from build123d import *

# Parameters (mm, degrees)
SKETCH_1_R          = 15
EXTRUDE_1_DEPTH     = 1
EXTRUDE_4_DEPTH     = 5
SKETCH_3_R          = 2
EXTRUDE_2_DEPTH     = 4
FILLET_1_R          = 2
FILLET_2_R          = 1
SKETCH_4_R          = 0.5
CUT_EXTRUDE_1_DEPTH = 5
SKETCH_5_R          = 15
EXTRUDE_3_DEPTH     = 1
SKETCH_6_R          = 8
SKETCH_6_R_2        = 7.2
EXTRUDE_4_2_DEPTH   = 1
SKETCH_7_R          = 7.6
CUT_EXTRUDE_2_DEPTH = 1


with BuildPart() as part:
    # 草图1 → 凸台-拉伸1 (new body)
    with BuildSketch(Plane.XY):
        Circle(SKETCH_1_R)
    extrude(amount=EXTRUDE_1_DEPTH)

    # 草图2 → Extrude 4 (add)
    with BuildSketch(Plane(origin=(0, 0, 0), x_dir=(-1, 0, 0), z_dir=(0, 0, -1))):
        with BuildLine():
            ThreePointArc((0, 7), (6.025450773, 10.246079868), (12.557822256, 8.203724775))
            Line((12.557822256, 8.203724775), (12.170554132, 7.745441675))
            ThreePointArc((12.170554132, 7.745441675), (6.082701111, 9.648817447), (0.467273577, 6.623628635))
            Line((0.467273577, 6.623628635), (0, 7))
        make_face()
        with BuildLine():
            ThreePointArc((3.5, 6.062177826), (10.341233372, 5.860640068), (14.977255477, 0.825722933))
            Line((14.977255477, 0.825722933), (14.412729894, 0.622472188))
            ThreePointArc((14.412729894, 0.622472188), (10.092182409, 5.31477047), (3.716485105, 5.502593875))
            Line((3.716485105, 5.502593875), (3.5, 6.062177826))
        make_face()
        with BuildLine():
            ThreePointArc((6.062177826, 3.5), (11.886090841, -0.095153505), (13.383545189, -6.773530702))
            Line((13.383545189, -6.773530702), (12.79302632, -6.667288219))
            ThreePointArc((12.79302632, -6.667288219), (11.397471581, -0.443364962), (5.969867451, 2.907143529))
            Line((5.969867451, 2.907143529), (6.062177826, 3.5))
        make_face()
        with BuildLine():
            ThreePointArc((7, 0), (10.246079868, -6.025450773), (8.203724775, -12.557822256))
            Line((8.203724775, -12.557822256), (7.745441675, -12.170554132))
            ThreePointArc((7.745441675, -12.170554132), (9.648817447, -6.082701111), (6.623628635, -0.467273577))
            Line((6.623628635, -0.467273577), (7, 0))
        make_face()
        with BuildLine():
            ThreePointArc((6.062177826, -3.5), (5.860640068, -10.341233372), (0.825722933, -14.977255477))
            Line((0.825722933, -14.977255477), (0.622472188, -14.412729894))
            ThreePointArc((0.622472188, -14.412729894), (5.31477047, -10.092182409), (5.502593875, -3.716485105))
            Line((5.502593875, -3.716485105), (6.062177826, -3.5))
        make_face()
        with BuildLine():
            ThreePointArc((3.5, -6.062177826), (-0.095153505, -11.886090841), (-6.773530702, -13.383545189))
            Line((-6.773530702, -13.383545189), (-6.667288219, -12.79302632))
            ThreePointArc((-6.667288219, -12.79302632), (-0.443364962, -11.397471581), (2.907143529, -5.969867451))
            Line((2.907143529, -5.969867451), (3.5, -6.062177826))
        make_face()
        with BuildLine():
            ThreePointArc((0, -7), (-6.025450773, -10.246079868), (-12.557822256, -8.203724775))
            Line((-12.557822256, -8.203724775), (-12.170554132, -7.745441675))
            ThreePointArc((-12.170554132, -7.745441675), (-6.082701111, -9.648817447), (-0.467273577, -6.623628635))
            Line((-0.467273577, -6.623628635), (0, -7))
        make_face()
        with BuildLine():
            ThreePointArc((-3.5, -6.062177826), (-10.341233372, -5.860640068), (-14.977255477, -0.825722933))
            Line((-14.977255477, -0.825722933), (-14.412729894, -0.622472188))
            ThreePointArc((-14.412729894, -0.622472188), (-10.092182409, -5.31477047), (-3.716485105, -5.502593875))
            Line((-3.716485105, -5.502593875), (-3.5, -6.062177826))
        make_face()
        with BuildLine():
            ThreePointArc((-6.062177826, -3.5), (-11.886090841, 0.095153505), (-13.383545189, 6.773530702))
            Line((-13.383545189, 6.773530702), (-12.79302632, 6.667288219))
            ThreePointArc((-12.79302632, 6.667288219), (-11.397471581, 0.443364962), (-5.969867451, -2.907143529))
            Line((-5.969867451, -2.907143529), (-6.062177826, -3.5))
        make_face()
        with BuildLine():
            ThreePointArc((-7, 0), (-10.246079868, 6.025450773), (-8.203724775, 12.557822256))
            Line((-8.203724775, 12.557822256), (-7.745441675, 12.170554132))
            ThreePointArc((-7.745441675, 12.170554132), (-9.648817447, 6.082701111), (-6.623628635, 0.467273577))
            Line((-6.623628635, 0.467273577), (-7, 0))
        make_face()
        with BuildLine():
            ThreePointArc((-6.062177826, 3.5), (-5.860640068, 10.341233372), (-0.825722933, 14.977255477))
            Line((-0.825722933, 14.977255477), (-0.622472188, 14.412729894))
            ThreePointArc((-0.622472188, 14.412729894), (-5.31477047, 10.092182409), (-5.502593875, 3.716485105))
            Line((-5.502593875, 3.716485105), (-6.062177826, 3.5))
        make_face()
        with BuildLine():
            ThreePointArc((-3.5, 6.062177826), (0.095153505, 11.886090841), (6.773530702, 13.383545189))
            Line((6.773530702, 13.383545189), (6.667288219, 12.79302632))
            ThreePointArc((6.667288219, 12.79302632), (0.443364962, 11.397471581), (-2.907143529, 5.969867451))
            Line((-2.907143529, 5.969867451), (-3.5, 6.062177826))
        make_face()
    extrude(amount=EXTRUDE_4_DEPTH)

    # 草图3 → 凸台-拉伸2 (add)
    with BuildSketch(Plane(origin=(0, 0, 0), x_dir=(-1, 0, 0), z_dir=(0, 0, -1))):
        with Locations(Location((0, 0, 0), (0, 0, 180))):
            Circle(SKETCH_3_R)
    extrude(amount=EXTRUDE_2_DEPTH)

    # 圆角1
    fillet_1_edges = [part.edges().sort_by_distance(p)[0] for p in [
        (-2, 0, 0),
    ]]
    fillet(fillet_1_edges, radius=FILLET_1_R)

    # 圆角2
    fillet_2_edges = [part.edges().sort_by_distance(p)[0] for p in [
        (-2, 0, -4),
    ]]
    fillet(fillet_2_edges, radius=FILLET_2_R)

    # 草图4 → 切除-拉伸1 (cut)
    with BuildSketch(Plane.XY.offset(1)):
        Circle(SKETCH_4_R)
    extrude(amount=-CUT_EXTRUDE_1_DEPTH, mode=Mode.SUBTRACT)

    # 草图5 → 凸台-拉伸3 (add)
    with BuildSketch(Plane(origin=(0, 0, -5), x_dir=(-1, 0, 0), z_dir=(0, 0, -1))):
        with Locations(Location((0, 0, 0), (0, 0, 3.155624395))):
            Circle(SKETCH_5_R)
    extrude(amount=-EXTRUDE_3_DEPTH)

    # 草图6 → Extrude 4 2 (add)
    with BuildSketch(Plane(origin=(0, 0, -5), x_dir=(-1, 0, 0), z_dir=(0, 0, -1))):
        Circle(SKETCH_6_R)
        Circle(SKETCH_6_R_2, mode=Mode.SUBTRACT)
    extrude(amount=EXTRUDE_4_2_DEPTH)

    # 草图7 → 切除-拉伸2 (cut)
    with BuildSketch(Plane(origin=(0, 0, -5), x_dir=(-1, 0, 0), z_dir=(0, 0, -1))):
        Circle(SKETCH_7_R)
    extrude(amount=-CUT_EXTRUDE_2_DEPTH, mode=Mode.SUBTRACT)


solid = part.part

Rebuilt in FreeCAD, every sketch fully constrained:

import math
import FreeCAD as App
import Part
import Sketcher
from FreeCAD import Vector
Q = App.Units.Quantity


def edges_at(feature, points):
    """Names of the edges that pass closest to the given points."""
    edges = feature.Shape.Edges
    near = lambda p: min(range(len(edges)), key=lambda i: edges[i].distToShape(Part.Vertex(*p))[0])
    return sorted({f"Edge{near(p) + 1}" for p in points})

doc = App.newDocument("Part")
body = doc.addObject("PartDesign::Body", "Body")

sketch1 = body.newObject("Sketcher::SketchObject", "Sketch")
sketch1.AttachmentSupport = (doc.getObject("XY_Plane"), [""])
sketch1.MapMode = "FlatFace"
sketch1.addGeometry(Part.Circle(Vector(0, 0, 0), Vector(0, 0, 1), 15), False)
sketch1.addConstraint([
    Sketcher.Constraint("Coincident", 0, 3, -1, 1),
    Sketcher.Constraint("Diameter", 0, Q("30 mm")),
])
pad1 = body.newObject("PartDesign::Pad", "Pad")
pad1.Profile = sketch1
pad1.Length = 1

sketch2 = body.newObject("Sketcher::SketchObject", "Sketch001")
sketch2.AttachmentSupport = (doc.getObject("XY_Plane"), [""])
sketch2.MapMode = "FlatFace"
sketch2.addGeometry([
    Part.ArcOfCircle(Part.Circle(Vector(-6.9, 1.5, 0), Vector(0, 0, 1), 8.8), math.radians(39), math.radians(130)),
    Part.LineSegment(Vector(0, 7, 0), Vector(-0.5, 6.6, 0)),
    Part.ArcOfCircle(Part.Circle(Vector(-6.9, 1.5, 0), Vector(0, 0, 1), 8.2), math.radians(39), math.radians(130)),
    Part.LineSegment(Vector(-12.2, 7.7, 0), Vector(-12.6, 8.2, 0)),
    Part.ArcOfCircle(Part.Circle(Vector(-6.7, -2.2, 0), Vector(0, 0, 1), 8.8), math.radians(69), math.radians(160)),
    Part.LineSegment(Vector(-3.5, 6.1, 0), Vector(-3.7, 5.5, 0)),
    Part.ArcOfCircle(Part.Circle(Vector(-6.7, -2.2, 0), Vector(0, 0, 1), 8.2), math.radians(69), math.radians(160)),
    Part.LineSegment(Vector(-14.4, 0.6, 0), Vector(-15, 0.8, 0)),
    Part.ArcOfCircle(Part.Circle(Vector(-4.7, -5.2, 0), Vector(0, 0, 1), 8.8), math.radians(99), math.radians(190)),
    Part.LineSegment(Vector(-6.1, 3.5, 0), Vector(-6, 2.9, 0)),
    Part.ArcOfCircle(Part.Circle(Vector(-4.7, -5.2, 0), Vector(0, 0, 1), 8.2), math.radians(99), math.radians(190)),
    Part.LineSegment(Vector(-12.8, -6.7, 0), Vector(-13.4, -6.8, 0)),
    Part.ArcOfCircle(Part.Circle(Vector(-1.5, -6.9, 0), Vector(0, 0, 1), 8.8), math.radians(129), math.radians(220)),
    Part.LineSegment(Vector(-7, 0, 0), Vector(-6.6, -0.5, 0)),
    Part.ArcOfCircle(Part.Circle(Vector(-1.5, -6.9, 0), Vector(0, 0, 1), 8.2), math.radians(129), math.radians(220)),
    Part.LineSegment(Vector(-7.7, -12.2, 0), Vector(-8.2, -12.6, 0)),
    Part.ArcOfCircle(Part.Circle(Vector(2.2, -6.7, 0), Vector(0, 0, 1), 8.8), math.radians(159), math.radians(250)),
    Part.LineSegment(Vector(-6.1, -3.5, 0), Vector(-5.5, -3.7, 0)),
    Part.ArcOfCircle(Part.Circle(Vector(2.2, -6.7, 0), Vector(0, 0, 1), 8.2), math.radians(159), math.radians(250)),
    Part.LineSegment(Vector(-0.6, -14.4, 0), Vector(-0.8, -15, 0)),
    Part.ArcOfCircle(Part.Circle(Vector(5.2, -4.7, 0), Vector(0, 0, 1), 8.8), math.radians(-171), math.radians(-80)),
    Part.LineSegment(Vector(-3.5, -6.1, 0), Vector(-2.9, -6, 0)),
    Part.ArcOfCircle(Part.Circle(Vector(5.2, -4.7, 0), Vector(0, 0, 1), 8.2), math.radians(-171), math.radians(-80)),
    Part.LineSegment(Vector(6.7, -12.8, 0), Vector(6.8, -13.4, 0)),
    Part.ArcOfCircle(Part.Circle(Vector(6.9, -1.5, 0), Vector(0, 0, 1), 8.8), math.radians(-141), math.radians(-50)),
    Part.LineSegment(Vector(0, -7, 0), Vector(0.5, -6.6, 0)),
    Part.ArcOfCircle(Part.Circle(Vector(6.9, -1.5, 0), Vector(0, 0, 1), 8.2), math.radians(-141), math.radians(-50)),
    Part.LineSegment(Vector(12.2, -7.7, 0), Vector(12.6, -8.2, 0)),
    Part.ArcOfCircle(Part.Circle(Vector(6.7, 2.2, 0), Vector(0, 0, 1), 8.8), math.radians(-111), math.radians(-20)),
    Part.LineSegment(Vector(3.5, -6.1, 0), Vector(3.7, -5.5, 0)),
    Part.ArcOfCircle(Part.Circle(Vector(6.7, 2.2, 0), Vector(0, 0, 1), 8.2), math.radians(-111), math.radians(-20)),
    Part.LineSegment(Vector(14.4, -0.6, 0), Vector(15, -0.8, 0)),
    Part.ArcOfCircle(Part.Circle(Vector(4.7, 5.2, 0), Vector(0, 0, 1), 8.8), math.radians(-81), math.radians(10)),
    Part.LineSegment(Vector(6.1, -3.5, 0), Vector(6, -2.9, 0)),
    Part.ArcOfCircle(Part.Circle(Vector(4.7, 5.2, 0), Vector(0, 0, 1), 8.2), math.radians(-81), math.radians(10)),
    Part.LineSegment(Vector(12.8, 6.7, 0), Vector(13.4, 6.8, 0)),
    Part.ArcOfCircle(Part.Circle(Vector(1.5, 6.9, 0), Vector(0, 0, 1), 8.8), math.radians(-51), math.radians(40)),
    Part.LineSegment(Vector(7, 0, 0), Vector(6.6, 0.5, 0)),
    Part.ArcOfCircle(Part.Circle(Vector(1.5, 6.9, 0), Vector(0, 0, 1), 8.2), math.radians(-51), math.radians(40)),
    Part.LineSegment(Vector(7.7, 12.2, 0), Vector(8.2, 12.6, 0)),
    Part.ArcOfCircle(Part.Circle(Vector(-2.2, 6.7, 0), Vector(0, 0, 1), 8.8), math.radians(-21), math.radians(70)),
    Part.LineSegment(Vector(6.1, 3.5, 0), Vector(5.5, 3.7, 0)),
    Part.ArcOfCircle(Part.Circle(Vector(-2.2, 6.7, 0), Vector(0, 0, 1), 8.2), math.radians(-21), math.radians(70)),
    Part.LineSegment(Vector(0.6, 14.4, 0), Vector(0.8, 15, 0)),
    Part.ArcOfCircle(Part.Circle(Vector(-5.2, 4.7, 0), Vector(0, 0, 1), 8.8), math.radians(9), math.radians(100)),
    Part.LineSegment(Vector(3.5, 6.1, 0), Vector(2.9, 6, 0)),
    Part.ArcOfCircle(Part.Circle(Vector(-5.2, 4.7, 0), Vector(0, 0, 1), 8.2), math.radians(9), math.radians(100)),
    Part.LineSegment(Vector(-6.7, 12.8, 0), Vector(-6.8, 13.4, 0)),
], False)
sketch2.addConstraint([
    Sketcher.Constraint("Coincident", 0, 1, 1, 1),
    Sketcher.Constraint("Coincident", 1, 2, 2, 1),
    Sketcher.Constraint("Coincident", 2, 2, 3, 1),
    Sketcher.Constraint("Coincident", 3, 2, 0, 2),
    Sketcher.Constraint("Coincident", 4, 1, 5, 1),
    Sketcher.Constraint("Coincident", 5, 2, 6, 1),
    Sketcher.Constraint("Coincident", 6, 2, 7, 1),
    Sketcher.Constraint("Coincident", 7, 2, 4, 2),
    Sketcher.Constraint("Coincident", 8, 1, 9, 1),
    Sketcher.Constraint("Coincident", 9, 2, 10, 1),
    Sketcher.Constraint("Coincident", 10, 2, 11, 1),
    Sketcher.Constraint("Coincident", 11, 2, 8, 2),
    Sketcher.Constraint("Coincident", 12, 1, 13, 1),
    Sketcher.Constraint("Coincident", 13, 2, 14, 1),
    Sketcher.Constraint("Coincident", 14, 2, 15, 1),
    Sketcher.Constraint("Coincident", 15, 2, 12, 2),
    Sketcher.Constraint("Coincident", 16, 1, 17, 1),
    Sketcher.Constraint("Coincident", 17, 2, 18, 1),
    Sketcher.Constraint("Coincident", 18, 2, 19, 1),
    Sketcher.Constraint("Coincident", 19, 2, 16, 2),
    Sketcher.Constraint("Coincident", 20, 1, 21, 1),
    Sketcher.Constraint("Coincident", 21, 2, 22, 1),
    Sketcher.Constraint("Coincident", 22, 2, 23, 1),
    Sketcher.Constraint("Coincident", 23, 2, 20, 2),
    Sketcher.Constraint("Coincident", 24, 1, 25, 1),
    Sketcher.Constraint("Coincident", 25, 2, 26, 1),
    Sketcher.Constraint("Coincident", 26, 2, 27, 1),
    Sketcher.Constraint("Coincident", 27, 2, 24, 2),
    Sketcher.Constraint("Coincident", 28, 1, 29, 1),
    Sketcher.Constraint("Coincident", 29, 2, 30, 1),
    Sketcher.Constraint("Coincident", 30, 2, 31, 1),
    Sketcher.Constraint("Coincident", 31, 2, 28, 2),
    Sketcher.Constraint("Coincident", 32, 1, 33, 1),
    Sketcher.Constraint("Coincident", 33, 2, 34, 1),
    Sketcher.Constraint("Coincident", 34, 2, 35, 1),
    Sketcher.Constraint("Coincident", 35, 2, 32, 2),
    Sketcher.Constraint("Coincident", 36, 1, 37, 1),
    Sketcher.Constraint("Coincident", 37, 2, 38, 1),
    Sketcher.Constraint("Coincident", 38, 2, 39, 1),
    Sketcher.Constraint("Coincident", 39, 2, 36, 2),
    Sketcher.Constraint("Coincident", 40, 1, 41, 1),
    Sketcher.Constraint("Coincident", 41, 2, 42, 1),
    Sketcher.Constraint("Coincident", 42, 2, 43, 1),
    Sketcher.Constraint("Coincident", 43, 2, 40, 2),
    Sketcher.Constraint("Coincident", 44, 1, 45, 1),
    Sketcher.Constraint("Coincident", 45, 2, 46, 1),
    Sketcher.Constraint("Coincident", 46, 2, 47, 1),
    Sketcher.Constraint("Coincident", 47, 2, 44, 2),
    Sketcher.Constraint("Coincident", 2, 3, 0, 3),
    Sketcher.Constraint("Coincident", 6, 3, 4, 3),
    Sketcher.Constraint("Coincident", 10, 3, 8, 3),
    Sketcher.Constraint("Coincident", 14, 3, 12, 3),
    Sketcher.Constraint("Coincident", 18, 3, 16, 3),
    Sketcher.Constraint("Coincident", 22, 3, 20, 3),
    Sketcher.Constraint("Coincident", 26, 3, 24, 3),
    Sketcher.Constraint("Coincident", 30, 3, 28, 3),
    Sketcher.Constraint("Coincident", 34, 3, 32, 3),
    Sketcher.Constraint("Coincident", 38, 3, 36, 3),
    Sketcher.Constraint("Coincident", 42, 3, 40, 3),
    Sketcher.Constraint("Coincident", 46, 3, 44, 3),
    Sketcher.Constraint("Equal", 0, 4),
    Sketcher.Constraint("Equal", 2, 6),
    Sketcher.Constraint("Equal", 4, 8),
    Sketcher.Constraint("Equal", 6, 10),
    Sketcher.Constraint("Equal", 8, 12),
    Sketcher.Constraint("Equal", 10, 14),
    Sketcher.Constraint("Equal", 12, 16),
    Sketcher.Constraint("Equal", 14, 18),
    Sketcher.Constraint("Equal", 16, 20),
    Sketcher.Constraint("Equal", 18, 22),
    Sketcher.Constraint("Equal", 20, 24),
    Sketcher.Constraint("Equal", 22, 26),
    Sketcher.Constraint("Equal", 24, 28),
    Sketcher.Constraint("Equal", 26, 30),
    Sketcher.Constraint("Equal", 28, 32),
    Sketcher.Constraint("Equal", 30, 34),
    Sketcher.Constraint("Equal", 32, 36),
    Sketcher.Constraint("Equal", 34, 38),
    Sketcher.Constraint("Equal", 36, 40),
    Sketcher.Constraint("Equal", 38, 42),
    Sketcher.Constraint("Equal", 40, 44),
    Sketcher.Constraint("Equal", 42, 46),
    Sketcher.Constraint("Symmetric", 0, 3, 24, 3, -1, 1),
    Sketcher.Constraint("Symmetric", 4, 3, 28, 3, -1, 1),
    Sketcher.Constraint("Symmetric", 8, 3, 32, 3, -1, 1),
    Sketcher.Constraint("Symmetric", 12, 3, 36, 3, -1, 1),
    Sketcher.Constraint("Symmetric", 16, 3, 40, 3, -1, 1),
    Sketcher.Constraint("Symmetric", 20, 3, 44, 3, -1, 1),
    Sketcher.Constraint("Symmetric", 20, 1, 28, 1, -2),
    Sketcher.Constraint("Symmetric", 16, 1, 32, 1, -2),
    Sketcher.Constraint("Symmetric", 12, 1, 36, 1, -2),
    Sketcher.Constraint("Symmetric", 8, 1, 40, 1, -2),
    Sketcher.Constraint("Symmetric", 4, 1, 44, 1, -2),
    Sketcher.Constraint("Symmetric", 0, 1, 24, 1, -1),
    Sketcher.Constraint("Perpendicular", 1, 13),
    Sketcher.Constraint("Perpendicular", 3, 15),
    Sketcher.Constraint("Perpendicular", 5, 17),
    Sketcher.Constraint("Perpendicular", 7, 19),
    Sketcher.Constraint("Perpendicular", 9, 21),
    Sketcher.Constraint("Perpendicular", 11, 23),
    Sketcher.Constraint("Perpendicular", 13, 25),
    Sketcher.Constraint("Perpendicular", 15, 27),
    Sketcher.Constraint("Perpendicular", 17, 29),
    Sketcher.Constraint("Perpendicular", 19, 31),
    Sketcher.Constraint("Perpendicular", 21, 33),
    Sketcher.Constraint("Perpendicular", 23, 35),
    Sketcher.Constraint("Perpendicular", 25, 37),
    Sketcher.Constraint("Perpendicular", 27, 39),
    Sketcher.Constraint("Perpendicular", 29, 41),
    Sketcher.Constraint("Perpendicular", 31, 43),
    Sketcher.Constraint("Perpendicular", 33, 45),
    Sketcher.Constraint("Perpendicular", 35, 47),
    Sketcher.Constraint("DistanceY", -1, 1, 0, 1, Q("7 mm")),
    Sketcher.Constraint("DistanceX", 12, 1, -1, 1, Q("7 mm")),
    Sketcher.Constraint("Distance", 1, Q("0.6 mm")),
    Sketcher.Constraint("DistanceX", 4, 1, -1, 1, Q("3.5 mm")),
    Sketcher.Constraint("DistanceY", -1, 1, 8, 1, Q("3.5 mm")),
    Sketcher.Constraint("Radius", 0, Q("8.817233 mm")),
    Sketcher.Constraint("DistanceX", 8, 3, -1, 1, Q("4.705641 mm")),
    Sketcher.Constraint("DistanceY", 20, 3, -1, 1, Q("4.705641 mm")),
    Sketcher.Constraint("DistanceY", -1, 1, 1, 2, Q("6.623629 mm")),
    Sketcher.Constraint("DistanceY", -1, 1, 2, 2, Q("7.745442 mm")),
    Sketcher.Constraint("DistanceX", 6, 2, -1, 1, Q("14.41273 mm")),
    Sketcher.Constraint("DistanceY", 10, 2, -1, 1, Q("6.667288 mm")),
    Sketcher.Constraint("DistanceY", 11, 2, -1, 1, Q("6.773531 mm")),
    Sketcher.Constraint("DistanceX", 14, 2, -1, 1, Q("7.745442 mm")),
    Sketcher.Constraint("DistanceY", 18, 2, -1, 1, Q("14.41273 mm")),
    Sketcher.Constraint("DistanceX", -1, 1, 22, 2, Q("6.667288 mm")),
    Sketcher.Constraint("DistanceY", 26, 2, -1, 1, Q("7.745442 mm")),
    Sketcher.Constraint("DistanceX", -1, 1, 30, 2, Q("14.41273 mm")),
    Sketcher.Constraint("DistanceY", -1, 1, 34, 2, Q("6.667288 mm")),
    Sketcher.Constraint("DistanceX", -1, 1, 38, 2, Q("7.745442 mm")),
    Sketcher.Constraint("DistanceY", -1, 1, 42, 2, Q("14.41273 mm")),
    Sketcher.Constraint("DistanceX", 46, 2, -1, 1, Q("6.667288 mm")),
    Sketcher.Constraint("DistanceX", 0, 3, -1, 1, Q("6.866767 mm")),
    Sketcher.Constraint("DistanceX", 4, 3, -1, 1, Q("6.681333 mm")),
    Sketcher.Constraint("DistanceY", 4, 3, -1, 1, Q("2.161126 mm")),
    Sketcher.Constraint("DistanceY", 8, 3, -1, 1, Q("5.212256 mm")),
    Sketcher.Constraint("DistanceX", 12, 3, -1, 1, Q("1.469077 mm")),
    Sketcher.Constraint("DistanceX", -1, 1, 16, 3, Q("2.161126 mm")),
    Sketcher.Constraint("DistanceX", 3, 2, -1, 1, Q("12.557822 mm")),
    Sketcher.Constraint("DistanceX", 5, 2, -1, 1, Q("3.716485 mm")),
    Sketcher.Constraint("DistanceX", 7, 2, -1, 1, Q("14.977255 mm")),
    Sketcher.Constraint("DistanceX", 9, 2, -1, 1, Q("5.969867 mm")),
])
pad2 = body.newObject("PartDesign::Pad", "Pad001")
pad2.Profile = sketch2
pad2.Length = 5
pad2.Reversed = True

sketch3 = body.newObject("Sketcher::SketchObject", "Sketch002")
sketch3.AttachmentSupport = (doc.getObject("XY_Plane"), [""])
sketch3.MapMode = "FlatFace"
sketch3.addGeometry(Part.Circle(Vector(0, 0, 0), Vector(0, 0, 1), 2), False)
sketch3.addConstraint([
    Sketcher.Constraint("Coincident", 0, 3, -1, 1),
    Sketcher.Constraint("Diameter", 0, Q("4 mm")),
])
pad3 = body.newObject("PartDesign::Pad", "Pad002")
pad3.Profile = sketch3
pad3.Length = 4
pad3.Reversed = True
doc.recompute()

fillet = body.newObject("PartDesign::Fillet", "Fillet")
fillet.Base = (pad3, edges_at(pad3, [(-2, 0, 0)]))
fillet.Radius = 2
doc.recompute()

fillet2 = body.newObject("PartDesign::Fillet", "Fillet001")
fillet2.Base = (fillet, edges_at(fillet, [(-2, 0, -4)]))
fillet2.Radius = 1

sketch4 = body.newObject("Sketcher::SketchObject", "Sketch003")
sketch4.AttachmentSupport = (doc.getObject("XY_Plane"), [""])
sketch4.MapMode = "FlatFace"
sketch4.AttachmentOffset = App.Placement(Vector(0, 0, 1), App.Rotation())
sketch4.addGeometry(Part.Circle(Vector(0, 0, 0), Vector(0, 0, 1), 0.5), False)
sketch4.addConstraint([
    Sketcher.Constraint("Coincident", 0, 3, -1, 1),
    Sketcher.Constraint("Diameter", 0, Q("1 mm")),
])
pocket1 = body.newObject("PartDesign::Pocket", "Pocket")
pocket1.Profile = sketch4
pocket1.Length = 5

sketch5 = body.newObject("Sketcher::SketchObject", "Sketch004")
sketch5.AttachmentSupport = (doc.getObject("XY_Plane"), [""])
sketch5.MapMode = "FlatFace"
sketch5.AttachmentOffset = App.Placement(Vector(0, 0, -5), App.Rotation())
sketch5.addGeometry(Part.Circle(Vector(0, 0, 0), Vector(0, 0, 1), 15), False)
sketch5.addConstraint([
    Sketcher.Constraint("Coincident", 0, 3, -1, 1),
    Sketcher.Constraint("Diameter", 0, Q("30 mm")),
])
pad4 = body.newObject("PartDesign::Pad", "Pad003")
pad4.Profile = sketch5
pad4.Length = 1

sketch6 = body.newObject("Sketcher::SketchObject", "Sketch005")
sketch6.AttachmentSupport = (doc.getObject("XY_Plane"), [""])
sketch6.MapMode = "FlatFace"
sketch6.AttachmentOffset = App.Placement(Vector(0, 0, -5), App.Rotation())
sketch6.addGeometry([
    Part.Circle(Vector(0, 0, 0), Vector(0, 0, 1), 8),
    Part.Circle(Vector(0, 0, 0), Vector(0, 0, 1), 7),
], False)
sketch6.addConstraint([
    Sketcher.Constraint("Coincident", 0, 3, -1, 1),
    Sketcher.Constraint("Coincident", 1, 3, -1, 1),
    Sketcher.Constraint("Diameter", 0, Q("16 mm")),
    Sketcher.Constraint("Diameter", 1, Q("14.4 mm")),
])
pad5 = body.newObject("PartDesign::Pad", "Pad004")
pad5.Profile = sketch6
pad5.Length = 1
pad5.Reversed = True

sketch7 = body.newObject("Sketcher::SketchObject", "Sketch006")
sketch7.AttachmentSupport = (doc.getObject("XY_Plane"), [""])
sketch7.MapMode = "FlatFace"
sketch7.AttachmentOffset = App.Placement(Vector(0, 0, -5), App.Rotation())
sketch7.addGeometry(Part.Circle(Vector(0, 0, 0), Vector(0, 0, 1), 8), False)
sketch7.addConstraint([
    Sketcher.Constraint("Coincident", 0, 3, -1, 1),
    Sketcher.Constraint("Diameter", 0, Q("15.2 mm")),
])
pocket2 = body.newObject("PartDesign::Pocket", "Pocket001")
pocket2.Profile = sketch7
pocket2.Length = 1
pocket2.Reversed = True

doc.recompute()
